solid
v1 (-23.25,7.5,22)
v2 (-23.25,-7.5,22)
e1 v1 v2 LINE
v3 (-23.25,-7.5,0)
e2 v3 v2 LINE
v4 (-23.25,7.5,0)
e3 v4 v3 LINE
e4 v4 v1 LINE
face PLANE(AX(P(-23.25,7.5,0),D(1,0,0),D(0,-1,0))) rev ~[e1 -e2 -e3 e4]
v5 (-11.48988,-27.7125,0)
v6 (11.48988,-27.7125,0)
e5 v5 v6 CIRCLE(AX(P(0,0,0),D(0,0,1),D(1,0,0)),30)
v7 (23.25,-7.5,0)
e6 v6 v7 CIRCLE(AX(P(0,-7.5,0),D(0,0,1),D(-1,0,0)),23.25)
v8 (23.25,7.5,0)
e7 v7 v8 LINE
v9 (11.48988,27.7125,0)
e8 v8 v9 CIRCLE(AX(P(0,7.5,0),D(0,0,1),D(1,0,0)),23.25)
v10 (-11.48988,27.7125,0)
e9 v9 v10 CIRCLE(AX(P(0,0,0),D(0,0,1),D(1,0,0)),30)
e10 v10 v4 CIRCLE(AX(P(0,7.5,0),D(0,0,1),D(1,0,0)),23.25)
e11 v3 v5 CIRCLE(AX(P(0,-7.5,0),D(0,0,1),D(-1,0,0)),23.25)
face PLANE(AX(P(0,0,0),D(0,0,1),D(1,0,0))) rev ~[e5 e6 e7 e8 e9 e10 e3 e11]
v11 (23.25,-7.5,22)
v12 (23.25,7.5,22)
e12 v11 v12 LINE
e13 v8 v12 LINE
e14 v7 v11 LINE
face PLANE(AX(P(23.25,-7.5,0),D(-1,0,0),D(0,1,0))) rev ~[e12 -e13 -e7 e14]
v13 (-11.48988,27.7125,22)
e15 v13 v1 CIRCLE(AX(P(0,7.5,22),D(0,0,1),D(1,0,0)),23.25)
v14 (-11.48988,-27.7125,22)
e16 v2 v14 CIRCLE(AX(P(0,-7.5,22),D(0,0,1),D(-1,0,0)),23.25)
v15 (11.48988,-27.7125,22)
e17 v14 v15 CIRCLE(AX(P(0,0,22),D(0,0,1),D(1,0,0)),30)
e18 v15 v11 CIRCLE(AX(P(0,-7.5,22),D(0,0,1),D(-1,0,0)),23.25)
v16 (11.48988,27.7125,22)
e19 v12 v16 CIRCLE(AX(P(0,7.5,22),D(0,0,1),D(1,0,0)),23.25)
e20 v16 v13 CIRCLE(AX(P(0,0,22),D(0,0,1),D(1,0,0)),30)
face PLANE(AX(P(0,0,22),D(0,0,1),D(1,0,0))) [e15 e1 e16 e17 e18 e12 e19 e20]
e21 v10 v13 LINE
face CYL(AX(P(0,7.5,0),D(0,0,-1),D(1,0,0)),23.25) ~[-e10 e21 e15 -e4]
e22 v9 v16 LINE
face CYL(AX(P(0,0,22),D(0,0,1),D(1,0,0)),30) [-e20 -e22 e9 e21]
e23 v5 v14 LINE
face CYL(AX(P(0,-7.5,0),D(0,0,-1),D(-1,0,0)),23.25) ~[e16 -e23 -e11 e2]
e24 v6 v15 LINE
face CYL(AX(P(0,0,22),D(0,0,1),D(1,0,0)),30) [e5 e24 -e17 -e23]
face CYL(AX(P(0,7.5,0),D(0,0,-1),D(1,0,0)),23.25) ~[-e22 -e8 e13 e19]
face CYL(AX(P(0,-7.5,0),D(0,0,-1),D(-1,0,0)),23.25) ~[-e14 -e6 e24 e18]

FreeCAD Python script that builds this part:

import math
import FreeCAD as App
import Part
import Sketcher

V = App.Vector

doc = App.newDocument("Part")
body = doc.addObject("PartDesign::Body", "Body")

sketch1 = body.newObject("Sketcher::SketchObject", "Sketch")
sketch1.AttachmentSupport = (doc.getObject("XY_Plane"), [""])
sketch1.MapMode = "FlatFace"
sketch1.addGeometry([
    Part.LineSegment(V(23, -8, 0), V(23, 8, 0)),
    Part.ArcOfCircle(Part.Circle(V(0, 8, 0), V(0, 0, 1), 23), math.radians(0), math.radians(180)),
    Part.LineSegment(V(-23, 8, 0), V(-23, -8, 0)),
    Part.ArcOfCircle(Part.Circle(V(0, -8, 0), V(0, 0, 1), 23), math.radians(180), math.radians(360)),
], False)
sketch1.addConstraint([
    Sketcher.Constraint("Tangent", 0, 2, 1, 1),
    Sketcher.Constraint("Tangent", 1, 2, 2, 1),
    Sketcher.Constraint("Tangent", 2, 2, 3, 1),
    Sketcher.Constraint("Tangent", 3, 2, 0, 1),
    Sketcher.Constraint("Vertical", 0),
    Sketcher.Constraint("Vertical", 2),
    Sketcher.Constraint("Symmetric", 1, 3, 3, 3, -1, 1),
    Sketcher.Constraint("DistanceY", 0, 1, 0, 2, 15.0),
    Sketcher.Constraint("Radius", 1, 23.25),
])
pad1 = body.newObject("PartDesign::Pad", "Pad")
pad1.Profile = sketch1
pad1.Length = 22
body2 = doc.addObject("PartDesign::Body", "Body001")

sketch2 = body2.newObject("Sketcher::SketchObject", "Sketch001")
sketch2.AttachmentSupport = (doc.getObject("XY_Plane001"), [""])
sketch2.MapMode = "FlatFace"
sketch2.AttachmentOffset = App.Placement(V(0, 0, 22), App.Rotation())
sketch2.addGeometry(Part.Circle(V(0, 0, 0), V(0, 0, 1), 30), False)
sketch2.addConstraint([
    Sketcher.Constraint("Coincident", 0, 3, -1, 1),
    Sketcher.Constraint("Diameter", 0, 60.0),
])
pad2 = body2.newObject("PartDesign::Pad", "Pad001")
pad2.Profile = sketch2
pad2.Length = 25
pad2.Reversed = True
doc.recompute()

boolean = body2.newObject("PartDesign::Boolean", "Boolean")
boolean.Type = "Common"
boolean.addObjects([body])

doc.recompute()
